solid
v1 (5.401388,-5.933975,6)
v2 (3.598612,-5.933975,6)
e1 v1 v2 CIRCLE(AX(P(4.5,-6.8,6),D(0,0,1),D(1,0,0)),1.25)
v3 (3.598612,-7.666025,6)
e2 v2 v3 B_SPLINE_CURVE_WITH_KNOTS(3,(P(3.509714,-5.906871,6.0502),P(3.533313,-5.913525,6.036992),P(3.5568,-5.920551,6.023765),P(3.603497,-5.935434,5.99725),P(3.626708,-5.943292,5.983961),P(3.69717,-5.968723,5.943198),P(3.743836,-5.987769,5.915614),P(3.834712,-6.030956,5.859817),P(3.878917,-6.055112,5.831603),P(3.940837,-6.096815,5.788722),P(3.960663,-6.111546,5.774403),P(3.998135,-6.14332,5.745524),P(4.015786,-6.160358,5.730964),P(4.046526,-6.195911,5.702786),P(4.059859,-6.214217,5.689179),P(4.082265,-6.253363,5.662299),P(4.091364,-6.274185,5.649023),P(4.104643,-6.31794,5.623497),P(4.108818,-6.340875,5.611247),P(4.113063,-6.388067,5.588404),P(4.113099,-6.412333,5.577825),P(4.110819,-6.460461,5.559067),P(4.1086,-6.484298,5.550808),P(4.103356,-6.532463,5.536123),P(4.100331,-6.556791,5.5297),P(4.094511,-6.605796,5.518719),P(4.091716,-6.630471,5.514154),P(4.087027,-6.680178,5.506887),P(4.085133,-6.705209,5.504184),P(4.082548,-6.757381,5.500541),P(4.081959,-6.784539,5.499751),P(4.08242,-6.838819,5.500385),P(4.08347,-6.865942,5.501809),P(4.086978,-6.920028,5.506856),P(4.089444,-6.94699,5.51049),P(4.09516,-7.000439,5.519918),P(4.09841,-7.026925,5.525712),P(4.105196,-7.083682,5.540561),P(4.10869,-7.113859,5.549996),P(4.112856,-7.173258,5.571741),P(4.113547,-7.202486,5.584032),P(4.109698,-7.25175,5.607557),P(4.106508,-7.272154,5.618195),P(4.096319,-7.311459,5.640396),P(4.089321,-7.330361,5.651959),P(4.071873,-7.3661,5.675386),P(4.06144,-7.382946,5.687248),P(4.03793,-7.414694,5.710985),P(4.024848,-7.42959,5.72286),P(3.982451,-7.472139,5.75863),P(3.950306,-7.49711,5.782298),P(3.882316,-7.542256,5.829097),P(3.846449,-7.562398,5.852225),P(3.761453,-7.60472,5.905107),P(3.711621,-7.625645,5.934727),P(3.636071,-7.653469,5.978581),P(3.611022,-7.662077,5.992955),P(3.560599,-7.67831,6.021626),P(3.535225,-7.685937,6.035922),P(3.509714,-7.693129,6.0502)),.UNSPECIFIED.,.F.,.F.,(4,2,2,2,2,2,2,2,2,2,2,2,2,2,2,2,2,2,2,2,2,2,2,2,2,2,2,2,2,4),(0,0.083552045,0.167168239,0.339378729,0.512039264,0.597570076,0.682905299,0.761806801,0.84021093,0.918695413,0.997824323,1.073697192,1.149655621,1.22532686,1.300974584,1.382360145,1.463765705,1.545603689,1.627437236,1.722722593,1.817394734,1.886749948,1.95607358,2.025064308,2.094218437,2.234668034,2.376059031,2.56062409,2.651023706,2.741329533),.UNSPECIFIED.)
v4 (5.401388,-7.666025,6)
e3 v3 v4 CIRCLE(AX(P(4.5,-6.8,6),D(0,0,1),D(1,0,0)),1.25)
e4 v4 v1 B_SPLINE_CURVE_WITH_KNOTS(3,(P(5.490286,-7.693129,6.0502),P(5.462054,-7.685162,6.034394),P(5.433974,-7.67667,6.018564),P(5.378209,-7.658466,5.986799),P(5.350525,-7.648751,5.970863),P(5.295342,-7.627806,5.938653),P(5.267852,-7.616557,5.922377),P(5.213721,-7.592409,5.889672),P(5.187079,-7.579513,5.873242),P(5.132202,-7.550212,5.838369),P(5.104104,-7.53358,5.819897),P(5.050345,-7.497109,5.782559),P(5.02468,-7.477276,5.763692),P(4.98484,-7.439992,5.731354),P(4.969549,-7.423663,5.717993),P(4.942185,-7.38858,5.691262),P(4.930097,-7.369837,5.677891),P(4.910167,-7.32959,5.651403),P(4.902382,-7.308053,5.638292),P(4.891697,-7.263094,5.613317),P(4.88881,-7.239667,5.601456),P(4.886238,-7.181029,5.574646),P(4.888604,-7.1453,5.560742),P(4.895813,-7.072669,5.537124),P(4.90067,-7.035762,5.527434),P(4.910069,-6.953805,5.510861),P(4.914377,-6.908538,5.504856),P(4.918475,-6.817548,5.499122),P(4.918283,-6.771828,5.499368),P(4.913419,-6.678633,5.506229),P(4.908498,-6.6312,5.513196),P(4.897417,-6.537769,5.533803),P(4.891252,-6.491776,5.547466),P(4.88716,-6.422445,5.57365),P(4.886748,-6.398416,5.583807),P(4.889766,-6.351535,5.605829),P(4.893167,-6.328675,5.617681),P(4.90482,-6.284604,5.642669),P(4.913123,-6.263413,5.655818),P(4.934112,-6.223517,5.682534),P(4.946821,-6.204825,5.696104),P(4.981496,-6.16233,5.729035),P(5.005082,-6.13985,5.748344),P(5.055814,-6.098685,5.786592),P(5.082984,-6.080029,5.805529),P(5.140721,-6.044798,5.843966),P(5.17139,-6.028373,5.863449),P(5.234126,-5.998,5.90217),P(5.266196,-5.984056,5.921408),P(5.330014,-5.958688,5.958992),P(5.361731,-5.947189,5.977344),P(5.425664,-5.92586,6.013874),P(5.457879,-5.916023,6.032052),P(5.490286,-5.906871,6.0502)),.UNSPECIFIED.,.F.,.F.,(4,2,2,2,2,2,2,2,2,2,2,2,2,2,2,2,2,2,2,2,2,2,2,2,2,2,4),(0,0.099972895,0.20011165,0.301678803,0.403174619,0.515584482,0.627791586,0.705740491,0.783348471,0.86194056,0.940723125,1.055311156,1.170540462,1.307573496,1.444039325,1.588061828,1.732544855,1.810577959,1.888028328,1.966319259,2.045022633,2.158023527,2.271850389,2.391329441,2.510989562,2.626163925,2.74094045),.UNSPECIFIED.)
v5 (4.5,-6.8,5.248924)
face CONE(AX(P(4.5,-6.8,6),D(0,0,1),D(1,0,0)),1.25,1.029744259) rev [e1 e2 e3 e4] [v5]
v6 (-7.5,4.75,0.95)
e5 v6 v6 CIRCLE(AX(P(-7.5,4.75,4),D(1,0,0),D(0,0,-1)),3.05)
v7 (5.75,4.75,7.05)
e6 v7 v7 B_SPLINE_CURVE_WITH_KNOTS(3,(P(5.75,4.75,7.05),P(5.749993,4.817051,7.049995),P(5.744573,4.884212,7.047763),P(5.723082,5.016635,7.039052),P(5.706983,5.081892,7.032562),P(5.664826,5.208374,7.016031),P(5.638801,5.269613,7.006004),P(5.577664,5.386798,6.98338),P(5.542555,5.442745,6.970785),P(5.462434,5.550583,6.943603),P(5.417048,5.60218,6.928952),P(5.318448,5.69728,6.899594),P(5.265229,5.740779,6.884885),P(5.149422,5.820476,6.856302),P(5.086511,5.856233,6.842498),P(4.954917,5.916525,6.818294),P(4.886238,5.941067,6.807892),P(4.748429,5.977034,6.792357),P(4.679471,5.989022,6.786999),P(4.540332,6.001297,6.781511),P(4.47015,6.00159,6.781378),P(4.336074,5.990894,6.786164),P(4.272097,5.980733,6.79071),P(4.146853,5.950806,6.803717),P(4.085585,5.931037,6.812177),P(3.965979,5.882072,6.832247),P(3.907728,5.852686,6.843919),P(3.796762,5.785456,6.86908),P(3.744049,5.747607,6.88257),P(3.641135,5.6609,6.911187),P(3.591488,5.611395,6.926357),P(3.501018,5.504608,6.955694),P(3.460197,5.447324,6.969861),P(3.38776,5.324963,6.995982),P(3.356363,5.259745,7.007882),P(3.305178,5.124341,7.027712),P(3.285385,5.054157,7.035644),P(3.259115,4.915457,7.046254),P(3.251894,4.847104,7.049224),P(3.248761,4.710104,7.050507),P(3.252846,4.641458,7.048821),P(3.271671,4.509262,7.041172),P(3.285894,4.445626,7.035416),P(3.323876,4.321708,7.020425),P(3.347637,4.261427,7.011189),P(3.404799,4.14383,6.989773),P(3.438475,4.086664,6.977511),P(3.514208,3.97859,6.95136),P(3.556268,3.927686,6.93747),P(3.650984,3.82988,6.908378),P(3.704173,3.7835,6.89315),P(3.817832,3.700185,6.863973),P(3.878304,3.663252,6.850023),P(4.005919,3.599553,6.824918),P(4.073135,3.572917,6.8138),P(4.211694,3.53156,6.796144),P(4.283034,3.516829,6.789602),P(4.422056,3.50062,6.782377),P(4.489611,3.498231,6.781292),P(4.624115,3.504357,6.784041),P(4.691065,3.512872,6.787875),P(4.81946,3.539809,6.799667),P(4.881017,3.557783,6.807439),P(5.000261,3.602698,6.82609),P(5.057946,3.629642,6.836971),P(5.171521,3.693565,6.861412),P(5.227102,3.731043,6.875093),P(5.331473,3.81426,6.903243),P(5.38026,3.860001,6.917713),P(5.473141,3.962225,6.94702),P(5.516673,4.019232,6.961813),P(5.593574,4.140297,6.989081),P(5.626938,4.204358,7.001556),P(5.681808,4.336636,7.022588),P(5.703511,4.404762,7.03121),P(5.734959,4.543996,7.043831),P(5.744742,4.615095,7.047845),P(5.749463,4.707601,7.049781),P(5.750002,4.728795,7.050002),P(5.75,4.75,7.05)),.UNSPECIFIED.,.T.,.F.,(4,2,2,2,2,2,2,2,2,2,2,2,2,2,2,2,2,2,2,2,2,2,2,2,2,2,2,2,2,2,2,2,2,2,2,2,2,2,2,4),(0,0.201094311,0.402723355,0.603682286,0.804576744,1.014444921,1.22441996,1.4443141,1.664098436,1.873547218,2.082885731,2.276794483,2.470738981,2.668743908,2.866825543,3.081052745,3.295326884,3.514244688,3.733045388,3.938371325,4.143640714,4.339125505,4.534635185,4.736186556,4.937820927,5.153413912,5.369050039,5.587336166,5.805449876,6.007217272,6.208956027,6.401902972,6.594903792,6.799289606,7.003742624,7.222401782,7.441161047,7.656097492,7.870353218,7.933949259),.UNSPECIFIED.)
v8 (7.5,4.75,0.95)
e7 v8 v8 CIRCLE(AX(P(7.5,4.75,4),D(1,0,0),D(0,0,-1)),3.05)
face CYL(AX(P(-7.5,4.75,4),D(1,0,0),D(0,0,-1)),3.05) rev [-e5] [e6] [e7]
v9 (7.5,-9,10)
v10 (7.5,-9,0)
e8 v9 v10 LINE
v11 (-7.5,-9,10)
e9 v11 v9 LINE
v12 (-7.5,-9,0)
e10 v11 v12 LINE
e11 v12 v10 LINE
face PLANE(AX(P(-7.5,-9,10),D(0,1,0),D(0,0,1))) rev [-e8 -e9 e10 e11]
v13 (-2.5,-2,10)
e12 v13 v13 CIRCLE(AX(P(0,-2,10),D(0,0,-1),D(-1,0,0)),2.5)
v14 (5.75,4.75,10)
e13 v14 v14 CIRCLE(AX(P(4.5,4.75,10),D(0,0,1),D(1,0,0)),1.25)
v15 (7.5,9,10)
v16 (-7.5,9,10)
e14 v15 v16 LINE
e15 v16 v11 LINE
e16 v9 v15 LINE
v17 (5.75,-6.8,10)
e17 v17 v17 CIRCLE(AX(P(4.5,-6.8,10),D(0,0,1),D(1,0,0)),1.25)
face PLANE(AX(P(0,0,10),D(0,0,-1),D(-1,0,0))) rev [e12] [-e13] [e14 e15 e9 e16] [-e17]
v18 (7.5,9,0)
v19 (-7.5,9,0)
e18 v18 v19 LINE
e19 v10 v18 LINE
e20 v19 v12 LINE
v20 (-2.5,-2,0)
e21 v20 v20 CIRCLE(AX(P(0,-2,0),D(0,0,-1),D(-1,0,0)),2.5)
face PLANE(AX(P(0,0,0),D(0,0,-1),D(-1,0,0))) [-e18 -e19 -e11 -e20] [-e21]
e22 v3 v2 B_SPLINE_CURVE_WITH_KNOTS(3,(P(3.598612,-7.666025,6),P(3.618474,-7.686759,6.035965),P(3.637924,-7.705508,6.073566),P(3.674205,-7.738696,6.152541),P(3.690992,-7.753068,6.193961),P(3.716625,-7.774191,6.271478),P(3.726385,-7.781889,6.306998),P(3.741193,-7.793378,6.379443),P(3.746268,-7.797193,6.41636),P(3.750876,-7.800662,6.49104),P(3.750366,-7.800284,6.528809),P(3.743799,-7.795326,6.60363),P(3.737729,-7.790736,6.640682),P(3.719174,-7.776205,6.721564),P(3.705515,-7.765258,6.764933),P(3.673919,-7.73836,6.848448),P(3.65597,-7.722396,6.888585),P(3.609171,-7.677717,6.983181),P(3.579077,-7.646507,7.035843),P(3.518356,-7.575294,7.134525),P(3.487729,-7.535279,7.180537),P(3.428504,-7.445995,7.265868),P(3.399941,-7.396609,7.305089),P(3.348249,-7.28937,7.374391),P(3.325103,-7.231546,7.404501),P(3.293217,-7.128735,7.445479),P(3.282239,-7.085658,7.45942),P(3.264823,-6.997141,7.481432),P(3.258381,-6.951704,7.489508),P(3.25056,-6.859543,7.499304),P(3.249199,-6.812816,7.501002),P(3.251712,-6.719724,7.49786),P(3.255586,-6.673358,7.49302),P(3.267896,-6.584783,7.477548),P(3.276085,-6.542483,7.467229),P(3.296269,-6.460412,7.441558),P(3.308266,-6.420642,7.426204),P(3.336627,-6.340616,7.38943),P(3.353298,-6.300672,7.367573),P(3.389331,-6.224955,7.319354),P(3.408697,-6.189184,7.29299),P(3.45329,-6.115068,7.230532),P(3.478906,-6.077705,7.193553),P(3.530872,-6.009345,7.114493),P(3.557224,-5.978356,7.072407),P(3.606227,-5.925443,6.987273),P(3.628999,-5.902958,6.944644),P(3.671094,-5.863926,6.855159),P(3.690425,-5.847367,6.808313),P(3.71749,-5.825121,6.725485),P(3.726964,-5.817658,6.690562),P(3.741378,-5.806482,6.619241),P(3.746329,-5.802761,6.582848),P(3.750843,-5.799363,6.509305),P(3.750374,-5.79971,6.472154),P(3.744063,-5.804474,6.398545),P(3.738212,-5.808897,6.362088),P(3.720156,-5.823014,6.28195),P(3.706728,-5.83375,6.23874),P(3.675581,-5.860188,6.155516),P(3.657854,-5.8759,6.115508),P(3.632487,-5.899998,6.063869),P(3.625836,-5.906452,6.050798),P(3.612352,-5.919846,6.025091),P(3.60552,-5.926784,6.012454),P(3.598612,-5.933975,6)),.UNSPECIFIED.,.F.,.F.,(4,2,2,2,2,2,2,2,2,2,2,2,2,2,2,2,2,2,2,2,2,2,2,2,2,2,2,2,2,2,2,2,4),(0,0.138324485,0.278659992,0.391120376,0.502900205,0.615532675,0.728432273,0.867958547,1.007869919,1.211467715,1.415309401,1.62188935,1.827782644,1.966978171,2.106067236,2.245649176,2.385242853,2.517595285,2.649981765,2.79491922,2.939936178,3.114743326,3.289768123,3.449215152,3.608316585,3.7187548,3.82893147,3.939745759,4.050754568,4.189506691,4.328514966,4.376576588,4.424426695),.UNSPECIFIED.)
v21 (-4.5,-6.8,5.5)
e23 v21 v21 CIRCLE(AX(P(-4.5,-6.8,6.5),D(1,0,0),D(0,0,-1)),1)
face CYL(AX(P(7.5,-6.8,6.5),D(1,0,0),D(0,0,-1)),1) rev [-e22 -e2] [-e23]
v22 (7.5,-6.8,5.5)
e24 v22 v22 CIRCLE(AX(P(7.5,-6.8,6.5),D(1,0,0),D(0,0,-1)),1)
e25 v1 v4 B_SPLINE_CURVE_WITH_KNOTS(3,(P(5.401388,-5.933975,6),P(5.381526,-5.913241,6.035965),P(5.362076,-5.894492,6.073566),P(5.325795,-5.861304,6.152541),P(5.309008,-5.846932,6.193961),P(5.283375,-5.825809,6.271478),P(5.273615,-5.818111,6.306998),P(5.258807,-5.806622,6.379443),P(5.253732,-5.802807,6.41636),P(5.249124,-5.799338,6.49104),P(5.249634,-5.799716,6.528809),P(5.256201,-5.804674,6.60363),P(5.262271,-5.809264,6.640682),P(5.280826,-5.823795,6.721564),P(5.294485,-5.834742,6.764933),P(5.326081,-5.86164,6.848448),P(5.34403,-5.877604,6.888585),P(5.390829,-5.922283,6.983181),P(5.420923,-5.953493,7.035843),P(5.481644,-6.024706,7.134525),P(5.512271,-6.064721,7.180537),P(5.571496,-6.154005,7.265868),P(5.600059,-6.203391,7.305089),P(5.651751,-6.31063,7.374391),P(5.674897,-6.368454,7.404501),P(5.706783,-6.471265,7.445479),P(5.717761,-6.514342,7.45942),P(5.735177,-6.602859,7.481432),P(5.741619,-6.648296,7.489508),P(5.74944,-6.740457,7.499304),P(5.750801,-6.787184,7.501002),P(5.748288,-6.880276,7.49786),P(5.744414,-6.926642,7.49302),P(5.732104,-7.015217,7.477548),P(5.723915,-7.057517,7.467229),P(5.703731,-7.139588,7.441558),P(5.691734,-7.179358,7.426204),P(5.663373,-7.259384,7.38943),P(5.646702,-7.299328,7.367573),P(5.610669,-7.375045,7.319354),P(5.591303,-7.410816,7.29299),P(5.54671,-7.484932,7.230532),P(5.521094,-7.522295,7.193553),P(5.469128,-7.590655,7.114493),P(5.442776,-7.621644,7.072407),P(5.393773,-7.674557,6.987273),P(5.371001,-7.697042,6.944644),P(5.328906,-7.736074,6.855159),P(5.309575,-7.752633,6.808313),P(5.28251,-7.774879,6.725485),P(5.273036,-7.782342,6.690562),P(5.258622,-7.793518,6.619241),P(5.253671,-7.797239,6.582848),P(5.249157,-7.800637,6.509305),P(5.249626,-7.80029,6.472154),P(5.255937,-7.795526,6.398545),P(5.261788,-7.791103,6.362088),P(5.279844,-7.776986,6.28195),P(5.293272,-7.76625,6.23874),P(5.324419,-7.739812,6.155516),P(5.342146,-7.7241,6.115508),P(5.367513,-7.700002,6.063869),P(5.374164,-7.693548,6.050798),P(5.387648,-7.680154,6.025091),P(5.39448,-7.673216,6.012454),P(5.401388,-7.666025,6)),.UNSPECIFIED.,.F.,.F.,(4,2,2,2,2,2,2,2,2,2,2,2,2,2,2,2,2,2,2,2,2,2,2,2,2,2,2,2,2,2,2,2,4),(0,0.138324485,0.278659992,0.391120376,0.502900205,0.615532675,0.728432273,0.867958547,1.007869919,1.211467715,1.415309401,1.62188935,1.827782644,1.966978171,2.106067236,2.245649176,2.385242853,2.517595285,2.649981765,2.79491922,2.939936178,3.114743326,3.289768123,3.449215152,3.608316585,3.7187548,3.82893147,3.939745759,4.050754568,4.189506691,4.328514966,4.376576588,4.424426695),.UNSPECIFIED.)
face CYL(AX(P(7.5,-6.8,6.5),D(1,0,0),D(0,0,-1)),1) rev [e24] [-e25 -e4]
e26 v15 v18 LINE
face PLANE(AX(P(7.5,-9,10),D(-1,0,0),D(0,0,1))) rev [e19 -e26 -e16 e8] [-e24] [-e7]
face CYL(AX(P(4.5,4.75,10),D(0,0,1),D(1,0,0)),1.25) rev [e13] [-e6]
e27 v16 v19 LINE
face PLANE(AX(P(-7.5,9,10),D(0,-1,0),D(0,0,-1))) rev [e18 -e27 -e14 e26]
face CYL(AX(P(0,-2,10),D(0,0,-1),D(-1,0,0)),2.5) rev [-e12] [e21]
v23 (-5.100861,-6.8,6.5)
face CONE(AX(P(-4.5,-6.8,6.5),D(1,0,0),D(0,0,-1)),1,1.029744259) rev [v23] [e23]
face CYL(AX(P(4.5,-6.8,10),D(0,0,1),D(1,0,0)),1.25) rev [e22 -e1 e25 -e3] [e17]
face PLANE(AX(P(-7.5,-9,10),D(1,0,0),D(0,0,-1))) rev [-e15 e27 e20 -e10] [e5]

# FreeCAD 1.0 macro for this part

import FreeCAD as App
import Part
import Sketcher


def add_polygon(sketch, points):
    """Adds a closed chain of lines whose ends are joined by coincident constraints."""
    first, n = sketch.GeometryCount, len(points)
    for a, b in zip(points, points[1:] + points[:1]):
        sketch.addGeometry(Part.LineSegment(App.Vector(*a, 0), App.Vector(*b, 0)), False)
    for i in range(n):
        sketch.addConstraint(Sketcher.Constraint("Coincident", first + i, 2, first + (i + 1) % n, 1))

doc = App.newDocument("Part")
body = doc.addObject("PartDesign::Body", "Body")

# Sketch on XY plane
sketch1 = body.newObject("Sketcher::SketchObject", "Sketch")
sketch1.AttachmentSupport = (doc.getObject("XY_Plane"), [""])
sketch1.MapMode = "FlatFace"
add_polygon(sketch1, [(-7.5, 9), (-7.5, -9), (7.5, -9), (7.5, 9)])  # lines 0-3
sketch1.addConstraint([
    Sketcher.Constraint("Vertical", 0),
    Sketcher.Constraint("Horizontal", 1),
    Sketcher.Constraint("Vertical", 2),
    Sketcher.Constraint("Horizontal", 3),
    Sketcher.Constraint("Symmetric", 0, 2, 2, 2, -1, 1),
    Sketcher.Constraint("DistanceX", 1, 1, 1, 2, 15.0),
    Sketcher.Constraint("DistanceY", 0, 2, 0, 1, 18.0),
])
pad1 = body.newObject("PartDesign::Pad", "Pad")
pad1.Profile = sketch1
pad1.Length = 10

# Sketch on XY plane
sketch2 = body.newObject("Sketcher::SketchObject", "Sketch001")
sketch2.AttachmentSupport = (doc.getObject("XY_Plane"), [""])
sketch2.MapMode = "FlatFace"
sketch2.addGeometry(Part.Circle(App.Vector(0, -2, 0), App.Vector(0, 0, 1), 2.5), False)
sketch2.addConstraint([
    Sketcher.Constraint("PointOnObject", 0, 3, -2),
    Sketcher.Constraint("Diameter", 0, 5.0),
    Sketcher.Constraint("DistanceY", 0, 3, -1, 1, 2.0),
])
pocket1 = body.newObject("PartDesign::Pocket", "Pocket")
pocket1.Profile = sketch2
pocket1.Type = "ThroughAll"
pocket1.Reversed = True

# Sketch on YZ plane
sketch3 = body.newObject("Sketcher::SketchObject", "Sketch002")
sketch3.AttachmentSupport = (doc.getObject("YZ_Plane"), [""])
sketch3.MapMode = "FlatFace"
sketch3.AttachmentOffset = App.Placement(App.Vector(0, 0, 7.5), App.Rotation())
sketch3.addGeometry(Part.Circle(App.Vector(4.75, 4, 0), App.Vector(0, 0, 1), 3.05), False)
sketch3.addConstraint([
    Sketcher.Constraint("Diameter", 0, 6.1),
    Sketcher.Constraint("DistanceY", -1, 1, 0, 3, 4.0),
    Sketcher.Constraint("DistanceX", -1, 1, 0, 3, 4.75),
])
pocket2 = body.newObject("PartDesign::Pocket", "Pocket001")
pocket2.Profile = sketch3
pocket2.Type = "ThroughAll"

# Sketch on XY plane
sketch4 = body.newObject("Sketcher::SketchObject", "Sketch003")
sketch4.AttachmentSupport = (doc.getObject("XY_Plane"), [""])
sketch4.MapMode = "FlatFace"
sketch4.AttachmentOffset = App.Placement(App.Vector(0, 0, 10), App.Rotation())
sketch4.addGeometry([
    Part.Circle(App.Vector(4.5, 4.75, 0), App.Vector(0, 0, 1), 1.25),
    Part.Circle(App.Vector(4.5, -6.8, 0), App.Vector(0, 0, 1), 1.25),
], False)
sketch4.addConstraint([
    Sketcher.Constraint("Equal", 0, 1),
    Sketcher.Constraint("Vertical", 0, 3, 1, 3),
    Sketcher.Constraint("Diameter", 0, 2.5),
    Sketcher.Constraint("DistanceX", -1, 1, 0, 3, 4.5),
    Sketcher.Constraint("DistanceY", 1, 3, -1, 1, 6.8),
    Sketcher.Constraint("DistanceY", -1, 1, 0, 3, 4.75),
])
doc.recompute()
hole = body.newObject("PartDesign::Hole", "Hole")
hole.Profile = sketch4
hole.ThreadType = "None"
hole.Diameter = 2.5
hole.DepthType = "Dimension"
hole.Depth = 4
hole.DrillPoint = "Angled"
hole.DrillPointAngle = 118

# Sketch on YZ plane
sketch5 = body.newObject("Sketcher::SketchObject", "Sketch004")
sketch5.AttachmentSupport = (doc.getObject("YZ_Plane"), [""])
sketch5.MapMode = "FlatFace"
sketch5.AttachmentOffset = App.Placement(App.Vector(0, 0, 7.5), App.Rotation())
sketch5.addGeometry(Part.Circle(App.Vector(-6.8, 6.5, 0), App.Vector(0, 0, 1), 1), False)
sketch5.addConstraint([
    Sketcher.Constraint("Diameter", 0, 2.0),
    Sketcher.Constraint("DistanceX", 0, 3, -1, 1, 6.8),
    Sketcher.Constraint("DistanceY", -1, 1, 0, 3, 6.5),
])
doc.recompute()
hole2 = body.newObject("PartDesign::Hole", "Hole001")
hole2.Profile = sketch5
hole2.ThreadType = "None"
hole2.Diameter = 2
hole2.DepthType = "Dimension"
hole2.Depth = 12
hole2.DrillPoint = "Angled"
hole2.DrillPointAngle = 118

doc.recompute()
